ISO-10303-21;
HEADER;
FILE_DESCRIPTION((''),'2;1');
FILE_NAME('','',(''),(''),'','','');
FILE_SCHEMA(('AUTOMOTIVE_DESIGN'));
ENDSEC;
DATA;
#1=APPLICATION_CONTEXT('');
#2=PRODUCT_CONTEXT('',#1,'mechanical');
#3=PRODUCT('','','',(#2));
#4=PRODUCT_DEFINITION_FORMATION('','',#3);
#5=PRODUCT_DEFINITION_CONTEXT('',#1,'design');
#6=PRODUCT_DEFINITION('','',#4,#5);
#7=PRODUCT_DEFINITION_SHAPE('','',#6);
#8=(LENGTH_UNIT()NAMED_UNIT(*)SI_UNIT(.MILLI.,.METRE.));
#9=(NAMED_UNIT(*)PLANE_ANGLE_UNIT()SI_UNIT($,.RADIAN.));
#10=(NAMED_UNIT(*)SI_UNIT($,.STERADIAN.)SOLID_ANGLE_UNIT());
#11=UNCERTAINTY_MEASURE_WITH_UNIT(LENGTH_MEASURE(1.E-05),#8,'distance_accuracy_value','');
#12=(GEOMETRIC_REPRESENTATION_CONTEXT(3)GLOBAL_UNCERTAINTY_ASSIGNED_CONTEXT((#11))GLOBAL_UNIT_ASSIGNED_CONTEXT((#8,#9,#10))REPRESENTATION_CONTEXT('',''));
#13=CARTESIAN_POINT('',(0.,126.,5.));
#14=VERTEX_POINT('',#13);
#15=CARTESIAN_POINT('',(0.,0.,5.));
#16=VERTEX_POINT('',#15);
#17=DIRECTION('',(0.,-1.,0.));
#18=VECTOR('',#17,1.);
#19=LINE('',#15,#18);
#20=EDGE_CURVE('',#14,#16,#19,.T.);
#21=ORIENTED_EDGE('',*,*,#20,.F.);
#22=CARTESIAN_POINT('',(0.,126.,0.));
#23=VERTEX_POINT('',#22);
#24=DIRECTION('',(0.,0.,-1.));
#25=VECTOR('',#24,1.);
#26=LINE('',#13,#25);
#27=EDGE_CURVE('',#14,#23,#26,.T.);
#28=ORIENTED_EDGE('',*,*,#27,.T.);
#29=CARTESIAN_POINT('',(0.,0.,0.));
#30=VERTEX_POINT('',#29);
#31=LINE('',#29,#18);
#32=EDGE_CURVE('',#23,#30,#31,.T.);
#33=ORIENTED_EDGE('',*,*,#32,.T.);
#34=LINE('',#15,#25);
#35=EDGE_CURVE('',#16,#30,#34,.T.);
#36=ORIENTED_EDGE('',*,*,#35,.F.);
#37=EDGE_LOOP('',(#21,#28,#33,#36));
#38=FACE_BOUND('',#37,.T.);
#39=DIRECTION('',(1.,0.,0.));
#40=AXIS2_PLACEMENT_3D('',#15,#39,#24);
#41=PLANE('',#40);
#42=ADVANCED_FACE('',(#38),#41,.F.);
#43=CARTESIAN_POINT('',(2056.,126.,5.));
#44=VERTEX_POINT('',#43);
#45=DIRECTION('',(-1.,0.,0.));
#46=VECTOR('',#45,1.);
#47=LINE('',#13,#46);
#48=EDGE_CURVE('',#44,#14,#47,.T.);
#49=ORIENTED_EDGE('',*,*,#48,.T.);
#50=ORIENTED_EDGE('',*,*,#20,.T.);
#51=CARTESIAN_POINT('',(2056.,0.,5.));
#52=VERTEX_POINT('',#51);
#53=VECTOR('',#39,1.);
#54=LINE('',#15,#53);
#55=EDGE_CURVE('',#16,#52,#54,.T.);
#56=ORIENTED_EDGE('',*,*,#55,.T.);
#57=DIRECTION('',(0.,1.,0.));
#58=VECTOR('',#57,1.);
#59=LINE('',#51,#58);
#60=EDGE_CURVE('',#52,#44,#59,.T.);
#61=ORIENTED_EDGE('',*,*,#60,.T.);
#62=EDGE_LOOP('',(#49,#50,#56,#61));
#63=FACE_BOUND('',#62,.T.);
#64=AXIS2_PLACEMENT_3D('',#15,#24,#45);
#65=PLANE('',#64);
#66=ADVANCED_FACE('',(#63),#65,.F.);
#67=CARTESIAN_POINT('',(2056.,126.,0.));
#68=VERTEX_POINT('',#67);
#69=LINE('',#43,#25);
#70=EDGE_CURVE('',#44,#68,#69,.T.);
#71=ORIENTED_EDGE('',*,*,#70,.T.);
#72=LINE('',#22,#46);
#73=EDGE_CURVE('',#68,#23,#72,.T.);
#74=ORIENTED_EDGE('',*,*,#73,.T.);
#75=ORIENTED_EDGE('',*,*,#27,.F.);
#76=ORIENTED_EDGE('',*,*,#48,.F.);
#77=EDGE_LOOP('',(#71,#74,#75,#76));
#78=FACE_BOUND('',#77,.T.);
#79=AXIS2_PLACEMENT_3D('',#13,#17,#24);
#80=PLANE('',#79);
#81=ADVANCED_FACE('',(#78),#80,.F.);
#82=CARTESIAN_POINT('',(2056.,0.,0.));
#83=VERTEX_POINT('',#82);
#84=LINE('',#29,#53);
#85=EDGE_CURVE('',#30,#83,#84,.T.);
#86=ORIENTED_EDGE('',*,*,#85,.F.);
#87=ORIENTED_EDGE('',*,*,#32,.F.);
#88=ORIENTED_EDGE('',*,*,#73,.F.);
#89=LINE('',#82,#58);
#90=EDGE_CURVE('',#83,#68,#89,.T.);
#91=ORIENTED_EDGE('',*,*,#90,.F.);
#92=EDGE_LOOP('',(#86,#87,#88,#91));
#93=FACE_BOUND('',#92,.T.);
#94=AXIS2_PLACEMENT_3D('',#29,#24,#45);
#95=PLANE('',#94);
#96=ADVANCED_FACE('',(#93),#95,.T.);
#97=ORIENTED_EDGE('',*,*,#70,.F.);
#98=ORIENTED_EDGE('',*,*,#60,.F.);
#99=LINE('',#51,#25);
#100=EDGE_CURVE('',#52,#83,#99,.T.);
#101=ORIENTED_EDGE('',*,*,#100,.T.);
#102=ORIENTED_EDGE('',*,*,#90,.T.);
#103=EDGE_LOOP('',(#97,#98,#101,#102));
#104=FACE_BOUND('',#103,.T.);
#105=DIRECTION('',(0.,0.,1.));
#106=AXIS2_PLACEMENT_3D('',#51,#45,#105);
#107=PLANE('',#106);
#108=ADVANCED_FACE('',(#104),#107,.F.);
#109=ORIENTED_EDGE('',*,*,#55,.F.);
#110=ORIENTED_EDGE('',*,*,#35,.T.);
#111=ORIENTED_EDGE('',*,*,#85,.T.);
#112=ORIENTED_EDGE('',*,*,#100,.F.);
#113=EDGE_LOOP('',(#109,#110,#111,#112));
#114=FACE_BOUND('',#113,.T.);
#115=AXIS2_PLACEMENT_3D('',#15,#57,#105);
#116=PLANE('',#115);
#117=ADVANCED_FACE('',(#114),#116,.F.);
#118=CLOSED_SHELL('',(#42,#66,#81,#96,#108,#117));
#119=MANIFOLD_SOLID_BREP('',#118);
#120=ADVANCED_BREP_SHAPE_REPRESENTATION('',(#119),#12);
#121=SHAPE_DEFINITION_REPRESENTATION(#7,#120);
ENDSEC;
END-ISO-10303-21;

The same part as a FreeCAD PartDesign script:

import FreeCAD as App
import Part
import Sketcher
from FreeCAD import Vector
Q = App.Units.Quantity


def add_polygon(sketch, points):
    """Adds a closed chain of lines whose ends are joined by coincident constraints."""
    first, n = sketch.GeometryCount, len(points)
    for a, b in zip(points, points[1:] + points[:1]):
        sketch.addGeometry(Part.LineSegment(App.Vector(*a, 0), App.Vector(*b, 0)), False)
    for i in range(n):
        sketch.addConstraint(Sketcher.Constraint("Coincident", first + i, 2, first + (i + 1) % n, 1))

doc = App.newDocument("Part")
body = doc.addObject("PartDesign::Body", "Body")

# Sketch on XY plane
sketch1 = body.newObject("Sketcher::SketchObject", "Sketch")
sketch1.AttachmentSupport = (doc.getObject("XY_Plane"), [""])
sketch1.MapMode = "FlatFace"
add_polygon(sketch1, [(0, 126), (0, 0), (2056, 0), (2056, 126)])  # lines 0-3
sketch1.addConstraint([
    Sketcher.Constraint("Vertical", 0),
    Sketcher.Constraint("Horizontal", 1),
    Sketcher.Constraint("Vertical", 2),
    Sketcher.Constraint("Horizontal", 3),
    Sketcher.Constraint("Coincident", 0, 2, -1, 1),
    Sketcher.Constraint("DistanceX", 1, 1, 1, 2, Q("2056 mm")),
    Sketcher.Constraint("DistanceY", 0, 2, 0, 1, Q("126 mm")),
])
pad1 = body.newObject("PartDesign::Pad", "Pad")
pad1.Profile = sketch1
pad1.Length = 5

doc.recompute()
